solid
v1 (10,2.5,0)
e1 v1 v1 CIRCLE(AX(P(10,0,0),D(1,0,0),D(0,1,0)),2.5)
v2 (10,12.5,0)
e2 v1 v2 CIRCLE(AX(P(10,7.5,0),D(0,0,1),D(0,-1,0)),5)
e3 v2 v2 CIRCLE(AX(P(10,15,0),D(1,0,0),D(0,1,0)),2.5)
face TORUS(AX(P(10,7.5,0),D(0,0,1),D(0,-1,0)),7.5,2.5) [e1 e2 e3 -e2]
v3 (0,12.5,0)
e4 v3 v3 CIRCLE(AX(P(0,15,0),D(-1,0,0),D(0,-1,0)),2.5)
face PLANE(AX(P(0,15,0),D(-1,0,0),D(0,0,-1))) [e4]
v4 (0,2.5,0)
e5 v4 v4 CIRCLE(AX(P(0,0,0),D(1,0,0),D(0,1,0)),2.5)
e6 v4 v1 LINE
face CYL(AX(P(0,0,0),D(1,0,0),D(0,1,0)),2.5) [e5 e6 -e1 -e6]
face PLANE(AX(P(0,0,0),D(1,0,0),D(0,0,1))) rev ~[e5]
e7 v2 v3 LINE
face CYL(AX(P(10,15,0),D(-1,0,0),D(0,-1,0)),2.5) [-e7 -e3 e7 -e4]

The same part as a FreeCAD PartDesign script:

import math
import FreeCAD as App
import Part
import Sketcher
from FreeCAD import Vector
Q = App.Units.Quantity

doc = App.newDocument("Part")
body = doc.addObject("PartDesign::Body", "Body")

sketch1 = body.newObject("Sketcher::SketchObject", "Sketch")
sketch1.AttachmentSupport = (doc.getObject("YZ_Plane"), [""])
sketch1.MapMode = "FlatFace"
sketch1.addGeometry(Part.Circle(Vector(0, 0, 0), Vector(0, 0, 1), 2.5), False)
sketch1.addConstraint(Sketcher.Constraint("Coincident", 0, 3, -1, 1))
sketch1.addConstraint(Sketcher.Constraint("Diameter", 0, Q("5 mm")))

sketch2 = body.newObject("Sketcher::SketchObject", "Sketch001")
sketch2.AttachmentSupport = (doc.getObject("XY_Plane"), [""])
sketch2.MapMode = "FlatFace"
sketch2.addGeometry(Part.LineSegment(Vector(0, 0, 0), Vector(10, 0, 0)), False)
sketch2.addGeometry(Part.ArcOfCircle(Part.Circle(Vector(10, 8, 0), Vector(0, 0, 1), 8), math.radians(-90), math.radians(90)), False)
sketch2.addGeometry(Part.LineSegment(Vector(10, 15, 0), Vector(0, 15, 0)), False)
sketch2.addConstraint(Sketcher.Constraint("Tangent", 0, 2, 1, 1))
sketch2.addConstraint(Sketcher.Constraint("Tangent", 1, 2, 2, 1))
sketch2.addConstraint(Sketcher.Constraint("Horizontal", 0))
sketch2.addConstraint(Sketcher.Constraint("Horizontal", 2))
sketch2.addConstraint(Sketcher.Constraint("Coincident", 0, 1, -1, 1))
sketch2.addConstraint(Sketcher.Constraint("PointOnObject", 2, 2, -2))
sketch2.addConstraint(Sketcher.Constraint("Radius", 1, Q("7.5 mm")))
sketch2.addConstraint(Sketcher.Constraint("DistanceX", 0, 1, 0, 2, Q("10 mm")))
doc.recompute()

additivepipe = body.newObject("PartDesign::AdditivePipe", "AdditivePipe")
additivepipe.Profile = sketch1
additivepipe.Spine = (sketch2, ["Edge1", "Edge2", "Edge3"])

doc.recompute()
